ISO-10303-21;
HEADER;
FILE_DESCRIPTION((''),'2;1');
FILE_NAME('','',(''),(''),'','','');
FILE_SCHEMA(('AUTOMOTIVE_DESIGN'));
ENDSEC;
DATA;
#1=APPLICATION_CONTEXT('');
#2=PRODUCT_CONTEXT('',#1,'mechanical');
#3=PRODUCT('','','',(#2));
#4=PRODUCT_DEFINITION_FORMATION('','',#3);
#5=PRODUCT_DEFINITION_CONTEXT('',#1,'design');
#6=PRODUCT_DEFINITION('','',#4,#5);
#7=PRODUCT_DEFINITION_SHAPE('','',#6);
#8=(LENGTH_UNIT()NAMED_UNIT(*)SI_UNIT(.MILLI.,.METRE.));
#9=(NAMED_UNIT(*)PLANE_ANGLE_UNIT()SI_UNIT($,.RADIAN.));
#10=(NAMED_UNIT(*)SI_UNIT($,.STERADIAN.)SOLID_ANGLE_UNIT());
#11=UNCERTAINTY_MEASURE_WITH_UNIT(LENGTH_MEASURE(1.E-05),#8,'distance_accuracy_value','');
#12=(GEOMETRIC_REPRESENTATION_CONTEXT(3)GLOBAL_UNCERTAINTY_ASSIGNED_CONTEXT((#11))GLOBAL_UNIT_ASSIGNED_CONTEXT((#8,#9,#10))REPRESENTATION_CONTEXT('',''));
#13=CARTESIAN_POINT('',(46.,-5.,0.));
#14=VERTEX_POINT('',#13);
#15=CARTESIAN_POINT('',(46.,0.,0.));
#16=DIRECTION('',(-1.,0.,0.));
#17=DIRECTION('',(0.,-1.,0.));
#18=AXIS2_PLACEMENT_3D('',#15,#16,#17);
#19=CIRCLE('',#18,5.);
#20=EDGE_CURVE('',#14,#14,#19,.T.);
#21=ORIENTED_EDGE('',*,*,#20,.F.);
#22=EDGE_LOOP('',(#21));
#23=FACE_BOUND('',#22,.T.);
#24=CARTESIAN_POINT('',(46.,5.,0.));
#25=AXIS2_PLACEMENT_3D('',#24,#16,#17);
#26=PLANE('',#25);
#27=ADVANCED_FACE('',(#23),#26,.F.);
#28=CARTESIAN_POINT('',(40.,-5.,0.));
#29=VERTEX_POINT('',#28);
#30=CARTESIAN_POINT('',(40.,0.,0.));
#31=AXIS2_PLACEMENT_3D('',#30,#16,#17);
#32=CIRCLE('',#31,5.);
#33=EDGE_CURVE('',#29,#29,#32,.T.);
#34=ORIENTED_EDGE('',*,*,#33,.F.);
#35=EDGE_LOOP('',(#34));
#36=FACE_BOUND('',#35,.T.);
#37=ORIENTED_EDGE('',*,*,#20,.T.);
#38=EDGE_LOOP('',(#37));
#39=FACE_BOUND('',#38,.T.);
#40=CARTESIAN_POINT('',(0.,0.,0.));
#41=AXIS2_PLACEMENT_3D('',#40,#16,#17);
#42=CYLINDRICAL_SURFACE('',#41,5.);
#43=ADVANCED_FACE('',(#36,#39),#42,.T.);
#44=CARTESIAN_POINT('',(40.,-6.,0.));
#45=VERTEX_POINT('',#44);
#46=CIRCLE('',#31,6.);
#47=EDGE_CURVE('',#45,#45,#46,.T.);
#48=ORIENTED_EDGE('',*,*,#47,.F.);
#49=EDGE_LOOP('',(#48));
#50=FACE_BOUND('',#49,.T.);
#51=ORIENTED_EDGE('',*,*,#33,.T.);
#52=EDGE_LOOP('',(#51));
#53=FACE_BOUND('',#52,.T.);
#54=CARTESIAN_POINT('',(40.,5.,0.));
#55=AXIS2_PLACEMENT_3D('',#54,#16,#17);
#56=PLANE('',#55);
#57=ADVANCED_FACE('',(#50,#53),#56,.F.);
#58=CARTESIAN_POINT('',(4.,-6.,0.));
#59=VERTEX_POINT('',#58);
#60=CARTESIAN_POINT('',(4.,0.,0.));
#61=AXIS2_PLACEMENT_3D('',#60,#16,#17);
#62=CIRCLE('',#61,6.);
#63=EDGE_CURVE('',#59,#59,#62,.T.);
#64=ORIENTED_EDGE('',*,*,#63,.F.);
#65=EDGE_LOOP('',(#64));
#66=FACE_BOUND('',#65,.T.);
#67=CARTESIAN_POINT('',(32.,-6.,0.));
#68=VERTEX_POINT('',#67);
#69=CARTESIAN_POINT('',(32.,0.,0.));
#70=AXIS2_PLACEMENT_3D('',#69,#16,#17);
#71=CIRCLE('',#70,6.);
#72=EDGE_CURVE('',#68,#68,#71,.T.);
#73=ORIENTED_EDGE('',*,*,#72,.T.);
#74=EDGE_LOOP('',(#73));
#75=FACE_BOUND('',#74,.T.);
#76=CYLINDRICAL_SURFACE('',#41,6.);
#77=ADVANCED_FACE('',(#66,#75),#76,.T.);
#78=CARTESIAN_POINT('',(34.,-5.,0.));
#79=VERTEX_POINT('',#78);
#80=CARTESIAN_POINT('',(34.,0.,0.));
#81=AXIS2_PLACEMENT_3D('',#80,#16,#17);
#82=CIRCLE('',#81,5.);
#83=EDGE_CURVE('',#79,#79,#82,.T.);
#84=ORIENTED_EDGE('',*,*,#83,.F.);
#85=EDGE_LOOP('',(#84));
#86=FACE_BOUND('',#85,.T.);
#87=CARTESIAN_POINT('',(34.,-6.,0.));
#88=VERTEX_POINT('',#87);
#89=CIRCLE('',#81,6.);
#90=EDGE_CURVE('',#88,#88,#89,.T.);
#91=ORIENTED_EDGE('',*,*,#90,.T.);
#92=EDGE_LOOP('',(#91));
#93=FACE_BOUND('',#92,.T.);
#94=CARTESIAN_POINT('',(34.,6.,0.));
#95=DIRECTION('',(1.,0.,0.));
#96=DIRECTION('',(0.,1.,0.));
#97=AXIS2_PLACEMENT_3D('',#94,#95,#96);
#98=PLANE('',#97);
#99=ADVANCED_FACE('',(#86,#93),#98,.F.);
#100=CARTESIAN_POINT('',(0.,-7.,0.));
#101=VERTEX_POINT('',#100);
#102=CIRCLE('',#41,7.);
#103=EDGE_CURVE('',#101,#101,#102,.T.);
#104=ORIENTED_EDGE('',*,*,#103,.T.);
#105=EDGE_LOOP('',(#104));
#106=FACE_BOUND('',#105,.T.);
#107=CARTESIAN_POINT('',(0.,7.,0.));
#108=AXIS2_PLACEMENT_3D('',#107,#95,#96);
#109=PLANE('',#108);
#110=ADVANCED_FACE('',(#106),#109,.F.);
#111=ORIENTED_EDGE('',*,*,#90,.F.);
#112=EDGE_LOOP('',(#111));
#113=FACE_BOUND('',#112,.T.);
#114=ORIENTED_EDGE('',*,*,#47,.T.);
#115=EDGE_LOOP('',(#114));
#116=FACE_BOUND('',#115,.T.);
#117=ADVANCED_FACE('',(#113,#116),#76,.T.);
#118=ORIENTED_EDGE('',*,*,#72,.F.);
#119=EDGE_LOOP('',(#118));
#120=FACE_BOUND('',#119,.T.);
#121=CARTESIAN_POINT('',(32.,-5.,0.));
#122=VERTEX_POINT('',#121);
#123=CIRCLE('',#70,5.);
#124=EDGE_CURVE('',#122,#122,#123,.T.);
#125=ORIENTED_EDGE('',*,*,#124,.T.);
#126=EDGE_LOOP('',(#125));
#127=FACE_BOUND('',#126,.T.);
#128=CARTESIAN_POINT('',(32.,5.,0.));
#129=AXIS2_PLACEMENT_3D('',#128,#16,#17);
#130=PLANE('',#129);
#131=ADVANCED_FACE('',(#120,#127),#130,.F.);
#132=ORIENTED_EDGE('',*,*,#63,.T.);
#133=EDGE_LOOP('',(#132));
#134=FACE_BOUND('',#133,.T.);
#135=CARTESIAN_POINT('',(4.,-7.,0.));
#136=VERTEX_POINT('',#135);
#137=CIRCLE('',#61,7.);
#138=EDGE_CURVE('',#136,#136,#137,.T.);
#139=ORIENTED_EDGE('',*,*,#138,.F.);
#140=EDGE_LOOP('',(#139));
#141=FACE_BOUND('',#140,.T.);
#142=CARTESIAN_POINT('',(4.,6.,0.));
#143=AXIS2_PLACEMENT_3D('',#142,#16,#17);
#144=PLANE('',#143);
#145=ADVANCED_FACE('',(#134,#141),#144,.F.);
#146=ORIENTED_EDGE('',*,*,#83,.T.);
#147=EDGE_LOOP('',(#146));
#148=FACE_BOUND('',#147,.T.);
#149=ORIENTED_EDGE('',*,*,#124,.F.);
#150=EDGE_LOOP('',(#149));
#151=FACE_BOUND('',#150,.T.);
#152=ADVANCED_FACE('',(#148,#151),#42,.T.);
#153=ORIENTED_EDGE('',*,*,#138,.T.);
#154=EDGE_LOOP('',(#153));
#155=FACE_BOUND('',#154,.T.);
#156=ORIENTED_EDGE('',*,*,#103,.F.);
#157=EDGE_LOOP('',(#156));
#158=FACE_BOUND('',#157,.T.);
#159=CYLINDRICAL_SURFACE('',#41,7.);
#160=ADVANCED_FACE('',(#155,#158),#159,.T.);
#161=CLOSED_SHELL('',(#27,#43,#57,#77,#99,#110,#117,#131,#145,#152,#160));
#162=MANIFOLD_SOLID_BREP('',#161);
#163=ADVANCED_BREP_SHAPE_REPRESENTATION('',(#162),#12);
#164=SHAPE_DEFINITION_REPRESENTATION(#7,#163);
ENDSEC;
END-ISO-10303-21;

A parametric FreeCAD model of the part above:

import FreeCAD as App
import Part
import Sketcher

V = App.Vector

doc = App.newDocument("Part")
body = doc.addObject("PartDesign::Body", "Body")

# Sketch on XY plane
sketch1 = body.newObject("Sketcher::SketchObject", "Sketch")
sketch1.AttachmentSupport = (doc.getObject("XY_Plane"), [""])
sketch1.MapMode = "FlatFace"
sketch1.addGeometry(Part.LineSegment(V(0, 0, 0), V(46, 0, 0)), False)
sketch1.addGeometry(Part.LineSegment(V(46, 0, 0), V(46, 5, 0)), False)
sketch1.addGeometry(Part.LineSegment(V(46, 5, 0), V(40, 5, 0)), False)
sketch1.addGeometry(Part.LineSegment(V(40, 5, 0), V(40, 6, 0)), False)
sketch1.addGeometry(Part.LineSegment(V(40, 6, 0), V(34, 6, 0)), False)
sketch1.addGeometry(Part.LineSegment(V(34, 6, 0), V(34, 5, 0)), False)
sketch1.addGeometry(Part.LineSegment(V(34, 5, 0), V(32, 5, 0)), False)
sketch1.addGeometry(Part.LineSegment(V(32, 5, 0), V(32, 6, 0)), False)
sketch1.addGeometry(Part.LineSegment(V(32, 6, 0), V(4, 6, 0)), False)
sketch1.addGeometry(Part.LineSegment(V(4, 6, 0), V(4, 7, 0)), False)
sketch1.addGeometry(Part.LineSegment(V(4, 7, 0), V(0, 7, 0)), False)
sketch1.addGeometry(Part.LineSegment(V(0, 7, 0), V(0, 0, 0)), False)
sketch1.addConstraint(Sketcher.Constraint("Coincident", 0, 2, 1, 1))
sketch1.addConstraint(Sketcher.Constraint("Coincident", 1, 2, 2, 1))
sketch1.addConstraint(Sketcher.Constraint("Coincident", 2, 2, 3, 1))
sketch1.addConstraint(Sketcher.Constraint("Coincident", 3, 2, 4, 1))
sketch1.addConstraint(Sketcher.Constraint("Coincident", 4, 2, 5, 1))
sketch1.addConstraint(Sketcher.Constraint("Coincident", 5, 2, 6, 1))
sketch1.addConstraint(Sketcher.Constraint("Coincident", 6, 2, 7, 1))
sketch1.addConstraint(Sketcher.Constraint("Coincident", 7, 2, 8, 1))
sketch1.addConstraint(Sketcher.Constraint("Coincident", 8, 2, 9, 1))
sketch1.addConstraint(Sketcher.Constraint("Coincident", 9, 2, 10, 1))
sketch1.addConstraint(Sketcher.Constraint("Coincident", 10, 2, 11, 1))
sketch1.addConstraint(Sketcher.Constraint("Coincident", 11, 2, 0, 1))
sketch1.addConstraint(Sketcher.Constraint("Horizontal", 0))
sketch1.addConstraint(Sketcher.Constraint("Vertical", 1))
sketch1.addConstraint(Sketcher.Constraint("Horizontal", 2))
sketch1.addConstraint(Sketcher.Constraint("Vertical", 3))
sketch1.addConstraint(Sketcher.Constraint("Horizontal", 4))
sketch1.addConstraint(Sketcher.Constraint("Vertical", 5))
sketch1.addConstraint(Sketcher.Constraint("Horizontal", 6))
sketch1.addConstraint(Sketcher.Constraint("Vertical", 7))
sketch1.addConstraint(Sketcher.Constraint("Horizontal", 8))
sketch1.addConstraint(Sketcher.Constraint("Vertical", 9))
sketch1.addConstraint(Sketcher.Constraint("Horizontal", 10))
sketch1.addConstraint(Sketcher.Constraint("Vertical", 11))
sketch1.addConstraint(Sketcher.Constraint("Coincident", 11, 2, -1, 1))
sketch1.addConstraint(Sketcher.Constraint("Horizontal", 2, 2, 5, 2))
sketch1.addConstraint(Sketcher.Constraint("Horizontal", 4, 2, 7, 2))
sketch1.addConstraint(Sketcher.Constraint("Equal", 2, 4))
sketch1.addConstraint(Sketcher.Constraint("Equal", 7, 9))
sketch1.addConstraint(Sketcher.Constraint("DistanceX", 0, 1, 0, 2, 46.0))
sketch1.addConstraint(Sketcher.Constraint("DistanceX", 2, 2, 2, 1, 6.0))
sketch1.addConstraint(Sketcher.Constraint("DistanceX", 6, 2, 6, 1, 2.0))
sketch1.addConstraint(Sketcher.Constraint("DistanceX", 8, 2, 8, 1, 28.0))
sketch1.addConstraint(Sketcher.Constraint("DistanceY", 1, 1, 1, 2, 5.0))
sketch1.addConstraint(Sketcher.Constraint("DistanceY", 3, 1, 3, 2, 1.0))
revolution = body.newObject("PartDesign::Revolution", "Revolution")
revolution.Profile = sketch1
revolution.ReferenceAxis = (sketch1, ["H_Axis"])
revolution.Angle = 360

doc.recompute()
